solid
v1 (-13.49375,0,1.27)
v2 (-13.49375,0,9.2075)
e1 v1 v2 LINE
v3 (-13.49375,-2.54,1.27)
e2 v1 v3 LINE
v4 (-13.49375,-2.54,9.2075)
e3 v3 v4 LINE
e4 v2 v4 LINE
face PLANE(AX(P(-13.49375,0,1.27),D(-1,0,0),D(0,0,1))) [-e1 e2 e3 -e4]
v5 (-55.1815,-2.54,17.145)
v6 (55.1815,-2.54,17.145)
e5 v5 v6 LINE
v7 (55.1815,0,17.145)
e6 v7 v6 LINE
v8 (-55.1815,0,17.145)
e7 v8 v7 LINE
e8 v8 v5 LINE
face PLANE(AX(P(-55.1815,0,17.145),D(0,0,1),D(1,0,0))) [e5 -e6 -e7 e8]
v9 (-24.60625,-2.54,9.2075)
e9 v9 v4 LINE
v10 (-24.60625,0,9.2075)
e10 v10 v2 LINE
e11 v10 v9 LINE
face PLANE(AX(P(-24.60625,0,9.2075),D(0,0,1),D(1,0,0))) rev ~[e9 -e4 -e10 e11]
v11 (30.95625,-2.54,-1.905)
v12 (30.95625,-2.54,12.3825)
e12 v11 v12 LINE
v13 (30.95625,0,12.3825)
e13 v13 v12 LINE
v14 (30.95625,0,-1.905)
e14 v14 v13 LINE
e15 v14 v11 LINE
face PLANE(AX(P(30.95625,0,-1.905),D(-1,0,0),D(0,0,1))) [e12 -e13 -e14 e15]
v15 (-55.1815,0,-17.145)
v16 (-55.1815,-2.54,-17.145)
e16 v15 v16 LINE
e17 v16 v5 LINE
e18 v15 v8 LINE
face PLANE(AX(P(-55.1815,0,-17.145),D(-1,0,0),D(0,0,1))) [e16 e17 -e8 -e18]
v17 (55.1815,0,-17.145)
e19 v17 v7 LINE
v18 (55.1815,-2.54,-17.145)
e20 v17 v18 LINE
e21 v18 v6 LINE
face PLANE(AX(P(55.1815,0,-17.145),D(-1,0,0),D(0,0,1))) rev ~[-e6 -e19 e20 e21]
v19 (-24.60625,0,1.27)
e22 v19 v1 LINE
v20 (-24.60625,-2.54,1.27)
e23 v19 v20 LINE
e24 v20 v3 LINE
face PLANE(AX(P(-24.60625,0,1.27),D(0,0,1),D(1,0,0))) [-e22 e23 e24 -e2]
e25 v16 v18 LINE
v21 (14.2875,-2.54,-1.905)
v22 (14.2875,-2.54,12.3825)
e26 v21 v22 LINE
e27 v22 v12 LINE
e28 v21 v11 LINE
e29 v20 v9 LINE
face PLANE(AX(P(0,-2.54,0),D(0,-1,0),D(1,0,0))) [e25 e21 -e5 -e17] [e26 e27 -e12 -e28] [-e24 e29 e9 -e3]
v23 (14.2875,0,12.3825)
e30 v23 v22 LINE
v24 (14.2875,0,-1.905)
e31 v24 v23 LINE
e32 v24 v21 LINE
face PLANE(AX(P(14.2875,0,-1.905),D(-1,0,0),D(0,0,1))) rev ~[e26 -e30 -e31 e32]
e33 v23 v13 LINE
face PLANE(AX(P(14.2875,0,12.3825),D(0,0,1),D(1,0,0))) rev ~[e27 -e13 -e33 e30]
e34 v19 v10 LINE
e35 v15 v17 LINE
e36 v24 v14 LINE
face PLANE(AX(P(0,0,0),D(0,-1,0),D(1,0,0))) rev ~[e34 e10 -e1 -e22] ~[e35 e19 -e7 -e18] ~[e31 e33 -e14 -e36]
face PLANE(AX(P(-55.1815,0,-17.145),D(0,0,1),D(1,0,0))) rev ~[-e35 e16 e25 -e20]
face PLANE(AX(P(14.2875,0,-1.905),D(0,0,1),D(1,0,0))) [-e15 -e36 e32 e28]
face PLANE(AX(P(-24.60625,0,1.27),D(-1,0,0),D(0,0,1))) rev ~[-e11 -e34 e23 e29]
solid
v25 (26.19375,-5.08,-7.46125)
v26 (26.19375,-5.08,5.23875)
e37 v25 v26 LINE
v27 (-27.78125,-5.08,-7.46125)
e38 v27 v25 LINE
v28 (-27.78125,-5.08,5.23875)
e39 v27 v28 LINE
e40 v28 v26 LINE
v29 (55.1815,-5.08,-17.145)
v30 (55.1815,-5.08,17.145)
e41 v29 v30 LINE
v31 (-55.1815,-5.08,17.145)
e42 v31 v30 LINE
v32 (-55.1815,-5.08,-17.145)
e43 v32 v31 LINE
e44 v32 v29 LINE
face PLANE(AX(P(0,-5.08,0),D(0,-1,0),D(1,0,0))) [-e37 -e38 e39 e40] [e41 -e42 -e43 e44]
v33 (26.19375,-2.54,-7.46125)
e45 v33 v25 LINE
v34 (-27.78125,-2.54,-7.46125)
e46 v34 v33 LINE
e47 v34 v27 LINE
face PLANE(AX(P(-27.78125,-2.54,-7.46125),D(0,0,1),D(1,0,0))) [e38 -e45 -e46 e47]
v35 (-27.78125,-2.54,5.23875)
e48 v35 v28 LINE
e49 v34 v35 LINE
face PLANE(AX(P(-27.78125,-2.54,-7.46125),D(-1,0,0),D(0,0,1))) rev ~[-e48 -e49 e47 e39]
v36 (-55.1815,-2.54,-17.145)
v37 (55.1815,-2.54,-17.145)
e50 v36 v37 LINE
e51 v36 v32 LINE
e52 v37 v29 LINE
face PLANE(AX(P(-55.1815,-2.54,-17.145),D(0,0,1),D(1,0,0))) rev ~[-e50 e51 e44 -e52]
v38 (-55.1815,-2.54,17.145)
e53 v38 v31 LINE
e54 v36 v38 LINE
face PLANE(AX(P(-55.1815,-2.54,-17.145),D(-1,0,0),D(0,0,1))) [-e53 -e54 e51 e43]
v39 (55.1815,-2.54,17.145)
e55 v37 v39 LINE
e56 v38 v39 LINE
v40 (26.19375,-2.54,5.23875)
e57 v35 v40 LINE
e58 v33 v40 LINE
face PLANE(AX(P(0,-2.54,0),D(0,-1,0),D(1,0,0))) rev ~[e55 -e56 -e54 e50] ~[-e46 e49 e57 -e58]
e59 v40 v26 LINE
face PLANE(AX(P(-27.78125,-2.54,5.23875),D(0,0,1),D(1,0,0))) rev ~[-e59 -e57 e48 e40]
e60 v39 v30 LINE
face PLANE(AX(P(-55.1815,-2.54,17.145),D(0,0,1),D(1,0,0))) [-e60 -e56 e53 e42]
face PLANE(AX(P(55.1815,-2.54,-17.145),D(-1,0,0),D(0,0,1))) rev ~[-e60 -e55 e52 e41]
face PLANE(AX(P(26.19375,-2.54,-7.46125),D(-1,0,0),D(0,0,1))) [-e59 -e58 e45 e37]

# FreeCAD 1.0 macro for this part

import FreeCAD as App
import Part
import Sketcher
from FreeCAD import Vector
Q = App.Units.Quantity


def add_polygon(sketch, points):
    """Adds a closed chain of lines whose ends are joined by coincident constraints."""
    first, n = sketch.GeometryCount, len(points)
    for a, b in zip(points, points[1:] + points[:1]):
        sketch.addGeometry(Part.LineSegment(App.Vector(*a, 0), App.Vector(*b, 0)), False)
    for i in range(n):
        sketch.addConstraint(Sketcher.Constraint("Coincident", first + i, 2, first + (i + 1) % n, 1))

doc = App.newDocument("Part")
body = doc.addObject("PartDesign::Body", "Body")

sketch1 = body.newObject("Sketcher::SketchObject", "Sketch")
sketch1.AttachmentSupport = (doc.getObject("XZ_Plane"), [""])
sketch1.MapMode = "FlatFace"
add_polygon(sketch1, [(-55.1815, 17.145), (-55.1815, -17.145), (55.1815, -17.145), (55.1815, 17.145)])
add_polygon(sketch1, [(-13.49375, 1.27), (-24.60625, 1.27), (-24.60625, 9.2075), (-13.49375, 9.2075)])
add_polygon(sketch1, [(30.95625, -1.905), (14.2875, -1.905), (14.2875, 12.3825), (30.95625, 12.3825)])
sketch1.addConstraint([
    Sketcher.Constraint("Vertical", 0),
    Sketcher.Constraint("Horizontal", 1),
    Sketcher.Constraint("Vertical", 2),
    Sketcher.Constraint("Horizontal", 3),
    Sketcher.Constraint("Horizontal", 4),
    Sketcher.Constraint("Vertical", 5),
    Sketcher.Constraint("Horizontal", 6),
    Sketcher.Constraint("Vertical", 7),
    Sketcher.Constraint("Horizontal", 8),
    Sketcher.Constraint("Vertical", 9),
    Sketcher.Constraint("Horizontal", 10),
    Sketcher.Constraint("Vertical", 11),
    Sketcher.Constraint("Symmetric", 0, 2, 2, 2, -1, 1),
    Sketcher.Constraint("DistanceY", 0, 2, 0, 1, Q("1.35 in")),
    Sketcher.Constraint("DistanceY", 1, 2, 8, 2, Q("0.6 in")),
    Sketcher.Constraint("DistanceX", 1, 1, 1, 2, Q("4.345 in")),
    Sketcher.Constraint("DistanceX", 4, 2, 4, 1, Q("0.4375 in")),
    Sketcher.Constraint("DistanceX", 8, 2, 8, 1, Q("0.65625 in")),
    Sketcher.Constraint("DistanceY", 5, 1, 5, 2, Q("0.3125 in")),
    Sketcher.Constraint("DistanceY", 9, 1, 9, 2, Q("0.5625 in")),
    Sketcher.Constraint("DistanceY", -1, 1, 4, 2, Q("0.05 in")),
    Sketcher.Constraint("DistanceX", 8, 2, 1, 2, Q("1.61 in")),
    Sketcher.Constraint("DistanceX", 6, 2, 10, 2, Q("1.75 in")),
])
pad1 = body.newObject("PartDesign::Pad", "Pad")
pad1.Profile = sketch1
pad1.Length = Q("0.1 in")
body2 = doc.addObject("PartDesign::Body", "Body001")

sketch2 = body2.newObject("Sketcher::SketchObject", "Sketch001")
sketch2.AttachmentSupport = (doc.getObject("XZ_Plane001"), [""])
sketch2.MapMode = "FlatFace"
sketch2.AttachmentOffset = App.Placement(Vector(0, 0, 0.1 * 25.4), App.Rotation())
add_polygon(sketch2, [(-55.1815, 17.145), (-55.1815, -17.145), (55.1815, -17.145), (55.1815, 17.145)])
add_polygon(sketch2, [(26.19375, -7.46125), (-27.78125, -7.46125), (-27.78125, 5.23875), (26.19375, 5.23875)])
sketch2.addConstraint([
    Sketcher.Constraint("Vertical", 0),
    Sketcher.Constraint("Horizontal", 1),
    Sketcher.Constraint("Vertical", 2),
    Sketcher.Constraint("Horizontal", 3),
    Sketcher.Constraint("Horizontal", 4),
    Sketcher.Constraint("Vertical", 5),
    Sketcher.Constraint("Horizontal", 6),
    Sketcher.Constraint("Vertical", 7),
    Sketcher.Constraint("Symmetric", 0, 2, 2, 2, -1, 1),
    Sketcher.Constraint("DistanceY", 5, 1, 5, 2, Q("0.5 in")),
    Sketcher.Constraint("DistanceY", 0, 2, 0, 1, Q("1.35 in")),
    Sketcher.Constraint("DistanceX", 1, 1, 1, 2, Q("4.345 in")),
    Sketcher.Constraint("DistanceX", 4, 2, 4, 1, Q("2.125 in")),
    Sketcher.Constraint("DistanceX", 4, 2, -1, 1, Q("1.09375 in")),
    Sketcher.Constraint("DistanceY", 4, 2, 3, 2, Q("0.96875 in")),
])
pad2 = body2.newObject("PartDesign::Pad", "Pad001")
pad2.Profile = sketch2
pad2.Length = Q("0.1 in")

doc.recompute()
